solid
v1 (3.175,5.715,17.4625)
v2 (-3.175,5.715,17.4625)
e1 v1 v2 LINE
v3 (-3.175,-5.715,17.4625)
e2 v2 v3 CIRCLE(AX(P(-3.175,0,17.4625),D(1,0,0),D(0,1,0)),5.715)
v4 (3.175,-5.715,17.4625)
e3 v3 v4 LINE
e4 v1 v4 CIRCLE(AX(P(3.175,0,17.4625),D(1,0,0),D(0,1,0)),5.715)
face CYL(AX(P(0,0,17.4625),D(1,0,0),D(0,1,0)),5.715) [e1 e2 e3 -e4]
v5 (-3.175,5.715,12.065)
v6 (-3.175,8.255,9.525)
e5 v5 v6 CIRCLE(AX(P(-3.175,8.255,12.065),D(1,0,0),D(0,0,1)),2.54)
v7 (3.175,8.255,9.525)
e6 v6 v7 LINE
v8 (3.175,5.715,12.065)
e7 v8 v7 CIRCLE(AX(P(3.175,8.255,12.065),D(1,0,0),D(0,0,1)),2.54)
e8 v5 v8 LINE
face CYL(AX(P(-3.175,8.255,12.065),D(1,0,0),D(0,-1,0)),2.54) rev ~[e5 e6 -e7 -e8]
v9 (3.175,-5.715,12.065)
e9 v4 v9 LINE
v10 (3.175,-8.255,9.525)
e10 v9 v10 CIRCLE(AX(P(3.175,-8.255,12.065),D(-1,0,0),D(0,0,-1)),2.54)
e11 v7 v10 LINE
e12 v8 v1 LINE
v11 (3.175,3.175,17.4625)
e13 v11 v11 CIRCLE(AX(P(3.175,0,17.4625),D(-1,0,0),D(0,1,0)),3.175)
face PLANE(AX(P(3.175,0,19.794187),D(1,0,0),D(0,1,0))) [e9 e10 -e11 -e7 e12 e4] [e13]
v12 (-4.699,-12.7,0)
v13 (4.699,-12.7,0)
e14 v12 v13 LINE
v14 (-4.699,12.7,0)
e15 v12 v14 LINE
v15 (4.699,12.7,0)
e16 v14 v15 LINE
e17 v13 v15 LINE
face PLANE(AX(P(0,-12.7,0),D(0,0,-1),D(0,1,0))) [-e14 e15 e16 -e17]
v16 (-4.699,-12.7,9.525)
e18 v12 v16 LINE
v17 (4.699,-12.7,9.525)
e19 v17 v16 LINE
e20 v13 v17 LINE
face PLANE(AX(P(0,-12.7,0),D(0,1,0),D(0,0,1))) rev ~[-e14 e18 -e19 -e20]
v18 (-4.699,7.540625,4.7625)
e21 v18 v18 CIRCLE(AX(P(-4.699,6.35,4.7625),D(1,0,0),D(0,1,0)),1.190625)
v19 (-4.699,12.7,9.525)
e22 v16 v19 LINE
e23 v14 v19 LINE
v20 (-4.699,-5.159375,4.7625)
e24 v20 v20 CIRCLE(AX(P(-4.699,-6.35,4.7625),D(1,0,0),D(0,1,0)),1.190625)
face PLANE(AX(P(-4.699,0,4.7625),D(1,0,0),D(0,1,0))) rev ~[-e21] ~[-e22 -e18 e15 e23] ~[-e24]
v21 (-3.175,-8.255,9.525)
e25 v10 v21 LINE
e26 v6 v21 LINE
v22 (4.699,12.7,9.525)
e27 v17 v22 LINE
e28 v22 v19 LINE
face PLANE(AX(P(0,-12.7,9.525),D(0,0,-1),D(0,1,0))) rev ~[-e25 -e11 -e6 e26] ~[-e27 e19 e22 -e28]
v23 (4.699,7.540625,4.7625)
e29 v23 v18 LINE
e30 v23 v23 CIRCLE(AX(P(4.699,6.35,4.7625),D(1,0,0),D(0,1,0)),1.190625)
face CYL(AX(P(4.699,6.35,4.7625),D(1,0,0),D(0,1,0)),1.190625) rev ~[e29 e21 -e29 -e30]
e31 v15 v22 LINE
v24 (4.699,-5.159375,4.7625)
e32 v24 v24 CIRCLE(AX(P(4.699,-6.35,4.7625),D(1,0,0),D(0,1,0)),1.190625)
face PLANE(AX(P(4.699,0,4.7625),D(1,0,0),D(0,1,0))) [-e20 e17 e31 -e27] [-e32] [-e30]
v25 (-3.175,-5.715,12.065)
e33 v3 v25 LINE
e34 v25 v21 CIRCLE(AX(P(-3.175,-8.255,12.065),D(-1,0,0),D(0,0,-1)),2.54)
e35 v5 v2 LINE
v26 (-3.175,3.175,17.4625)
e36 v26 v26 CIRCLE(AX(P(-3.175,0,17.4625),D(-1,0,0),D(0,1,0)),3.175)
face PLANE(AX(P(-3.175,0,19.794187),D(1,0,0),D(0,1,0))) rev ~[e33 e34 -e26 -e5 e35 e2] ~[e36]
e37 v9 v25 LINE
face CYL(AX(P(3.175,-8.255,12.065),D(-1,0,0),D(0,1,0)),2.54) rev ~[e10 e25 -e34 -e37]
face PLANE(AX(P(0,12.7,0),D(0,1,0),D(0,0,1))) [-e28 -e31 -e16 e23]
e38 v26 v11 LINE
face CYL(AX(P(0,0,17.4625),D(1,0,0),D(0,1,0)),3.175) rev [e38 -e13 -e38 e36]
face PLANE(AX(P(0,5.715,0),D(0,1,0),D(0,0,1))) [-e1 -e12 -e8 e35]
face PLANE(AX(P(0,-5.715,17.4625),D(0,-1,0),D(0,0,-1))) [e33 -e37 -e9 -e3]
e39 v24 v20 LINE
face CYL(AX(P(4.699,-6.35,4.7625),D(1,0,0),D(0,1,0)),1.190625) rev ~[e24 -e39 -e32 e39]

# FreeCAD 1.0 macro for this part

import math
import FreeCAD as App
import Part
import Sketcher
from FreeCAD import Vector
Q = App.Units.Quantity


def edges_at(feature, points):
    """Names of the edges that pass closest to the given points."""
    edges = feature.Shape.Edges
    near = lambda p: min(range(len(edges)), key=lambda i: edges[i].distToShape(Part.Vertex(*p))[0])
    return sorted({f"Edge{near(p) + 1}" for p in points})

doc = App.newDocument("Part")
params = doc.addObject("Spreadsheet::Sheet", "Params")
for row, (alias, value) in enumerate([
    ("sketch1_width", "1 in"),
    ("sketch1_height", "0.375 in"),
    ("pad1_length", "0.37 in"),
    ("sketch2_diameter", "0.25 in"),
    ("sketch2_radius", "0.225 in"),
    ("sketch2_height", "0.6875 in"),
    ("pad2_length", "0.25 in"),
    ("sketch3_diameter", "0.09375 in"),
    ("fillet_radius", "0.1 in"),
], start=1):
    params.set(f"A{row}", alias)
    params.set(f"B{row}", "=" + value)
    params.setAlias(f"B{row}", alias)

body = doc.addObject("PartDesign::Body", "Body")

sketch1 = doc.addObject("Sketcher::SketchObject", "Sketch")
body.addObject(sketch1)
sketch1.AttachmentSupport = (doc.YZ_Plane, [""])
sketch1.MapMode = "FlatFace"
sketch1.addGeometry([
    Part.LineSegment(Vector(-13, 10, 0), Vector(-13, 0, 0)),
    Part.LineSegment(Vector(-13, 0, 0), Vector(13, 0, 0)),
    Part.LineSegment(Vector(13, 0, 0), Vector(13, 10, 0)),
    Part.LineSegment(Vector(13, 10, 0), Vector(-13, 10, 0)),
], False)
sketch1.addConstraint([
    Sketcher.Constraint("Coincident", 0, 2, 1, 1),
    Sketcher.Constraint("Coincident", 1, 2, 2, 1),
    Sketcher.Constraint("Coincident", 2, 2, 3, 1),
    Sketcher.Constraint("Coincident", 3, 2, 0, 1),
    Sketcher.Constraint("Vertical", 0),
    Sketcher.Constraint("Horizontal", 1),
    Sketcher.Constraint("Vertical", 2),
    Sketcher.Constraint("Horizontal", 3),
    Sketcher.Constraint("Symmetric", 0, 2, 1, 2, -1, 1),
    Sketcher.Constraint("DistanceX", 1, 1, 1, 2, Q("1 in")),
    Sketcher.Constraint("DistanceY", 0, 2, 0, 1, Q("0.375 in")),
])
sketch1.setExpression("Constraints[9]", "Params.sketch1_width")
sketch1.setExpression("Constraints[10]", "Params.sketch1_height")
pad1 = doc.addObject("PartDesign::Pad", "Pad")
body.addObject(pad1)
pad1.Profile = sketch1
pad1.setExpression("Length", "Params.pad1_length")
pad1.Midplane = True

sketch2 = doc.addObject("Sketcher::SketchObject", "Sketch001")
body.addObject(sketch2)
sketch2.AttachmentSupport = (doc.YZ_Plane, [""])
sketch2.MapMode = "FlatFace"
sketch2.addGeometry([
    Part.ArcOfCircle(Part.Circle(Vector(0, 17.5, 0), Vector(0, 0, 1), 5.7), math.radians(0), math.radians(180)),
    Part.LineSegment(Vector(-5.7, 17.5, 0), Vector(-5.7, 0, 0)),
    Part.LineSegment(Vector(-5.7, 0, 0), Vector(5.7, 0, 0)),
    Part.LineSegment(Vector(5.7, 0, 0), Vector(5.7, 17.5, 0)),
    Part.Circle(Vector(0, 17.5, 0), Vector(0, 0, 1), 3.2),
], False)
sketch2.addConstraint([
    Sketcher.Constraint("Tangent", 0, 2, 1, 1),
    Sketcher.Constraint("Coincident", 1, 2, 2, 1),
    Sketcher.Constraint("Coincident", 2, 2, 3, 1),
    Sketcher.Constraint("Tangent", 3, 2, 0, 1),
    Sketcher.Constraint("Vertical", 1),
    Sketcher.Constraint("Horizontal", 2),
    Sketcher.Constraint("Vertical", 3),
    Sketcher.Constraint("Coincident", 4, 3, 0, 3),
    Sketcher.Constraint("Symmetric", 1, 2, 2, 2, -1, 1),
    Sketcher.Constraint("Diameter", 4, Q("0.25 in")),
    Sketcher.Constraint("Radius", 0, Q("0.225 in")),
    Sketcher.Constraint("DistanceY", 1, 2, 1, 1, Q("0.6875 in")),
])
sketch2.setExpression("Constraints[9]", "Params.sketch2_diameter")
sketch2.setExpression("Constraints[10]", "Params.sketch2_radius")
sketch2.setExpression("Constraints[11]", "Params.sketch2_height")
pad2 = doc.addObject("PartDesign::Pad", "Pad001")
body.addObject(pad2)
pad2.Profile = sketch2
pad2.setExpression("Length", "Params.pad2_length")
pad2.Midplane = True

sketch3 = doc.addObject("Sketcher::SketchObject", "Sketch002")
body.addObject(sketch3)
sketch3.AttachmentSupport = (doc.YZ_Plane, [""])
sketch3.MapMode = "FlatFace"
sketch3.AttachmentOffset = App.Placement(Vector(0, 0, 0.185 * 25.4), App.Rotation())
sketch3.addGeometry([
    Part.Circle(Vector(-6.3, 4.8, 0), Vector(0, 0, 1), 1.2),
    Part.Circle(Vector(6.3, 4.8, 0), Vector(0, 0, 1), 1.2),
], False)
sketch3.addConstraint([
    Sketcher.Constraint("Equal", 0, 1),
    Sketcher.Constraint("Symmetric", 0, 3, 1, 3, -2),
    Sketcher.Constraint("Diameter", 0, Q("0.09375 in")),
    Sketcher.Constraint("DistanceX", 0, 3, 1, 3, Q("0.5 in")),
    Sketcher.Constraint("DistanceY", -1, 1, 0, 3, Q("0.1875 in")),
])
sketch3.setExpression("Constraints[2]", "Params.sketch3_diameter")
pocket1 = doc.addObject("PartDesign::Pocket", "Pocket")
body.addObject(pocket1)
pocket1.Profile = sketch3
pocket1.Type = "ThroughAll"
doc.recompute()

fillet = doc.addObject("PartDesign::Fillet", "Fillet")
body.addObject(fillet)
fillet.Base = (pocket1, edges_at(pocket1, [(0, 5.715, 9.525), (0, -5.715, 9.525)]))
fillet.setExpression("Radius", "Params.fillet_radius")

doc.recompute()
